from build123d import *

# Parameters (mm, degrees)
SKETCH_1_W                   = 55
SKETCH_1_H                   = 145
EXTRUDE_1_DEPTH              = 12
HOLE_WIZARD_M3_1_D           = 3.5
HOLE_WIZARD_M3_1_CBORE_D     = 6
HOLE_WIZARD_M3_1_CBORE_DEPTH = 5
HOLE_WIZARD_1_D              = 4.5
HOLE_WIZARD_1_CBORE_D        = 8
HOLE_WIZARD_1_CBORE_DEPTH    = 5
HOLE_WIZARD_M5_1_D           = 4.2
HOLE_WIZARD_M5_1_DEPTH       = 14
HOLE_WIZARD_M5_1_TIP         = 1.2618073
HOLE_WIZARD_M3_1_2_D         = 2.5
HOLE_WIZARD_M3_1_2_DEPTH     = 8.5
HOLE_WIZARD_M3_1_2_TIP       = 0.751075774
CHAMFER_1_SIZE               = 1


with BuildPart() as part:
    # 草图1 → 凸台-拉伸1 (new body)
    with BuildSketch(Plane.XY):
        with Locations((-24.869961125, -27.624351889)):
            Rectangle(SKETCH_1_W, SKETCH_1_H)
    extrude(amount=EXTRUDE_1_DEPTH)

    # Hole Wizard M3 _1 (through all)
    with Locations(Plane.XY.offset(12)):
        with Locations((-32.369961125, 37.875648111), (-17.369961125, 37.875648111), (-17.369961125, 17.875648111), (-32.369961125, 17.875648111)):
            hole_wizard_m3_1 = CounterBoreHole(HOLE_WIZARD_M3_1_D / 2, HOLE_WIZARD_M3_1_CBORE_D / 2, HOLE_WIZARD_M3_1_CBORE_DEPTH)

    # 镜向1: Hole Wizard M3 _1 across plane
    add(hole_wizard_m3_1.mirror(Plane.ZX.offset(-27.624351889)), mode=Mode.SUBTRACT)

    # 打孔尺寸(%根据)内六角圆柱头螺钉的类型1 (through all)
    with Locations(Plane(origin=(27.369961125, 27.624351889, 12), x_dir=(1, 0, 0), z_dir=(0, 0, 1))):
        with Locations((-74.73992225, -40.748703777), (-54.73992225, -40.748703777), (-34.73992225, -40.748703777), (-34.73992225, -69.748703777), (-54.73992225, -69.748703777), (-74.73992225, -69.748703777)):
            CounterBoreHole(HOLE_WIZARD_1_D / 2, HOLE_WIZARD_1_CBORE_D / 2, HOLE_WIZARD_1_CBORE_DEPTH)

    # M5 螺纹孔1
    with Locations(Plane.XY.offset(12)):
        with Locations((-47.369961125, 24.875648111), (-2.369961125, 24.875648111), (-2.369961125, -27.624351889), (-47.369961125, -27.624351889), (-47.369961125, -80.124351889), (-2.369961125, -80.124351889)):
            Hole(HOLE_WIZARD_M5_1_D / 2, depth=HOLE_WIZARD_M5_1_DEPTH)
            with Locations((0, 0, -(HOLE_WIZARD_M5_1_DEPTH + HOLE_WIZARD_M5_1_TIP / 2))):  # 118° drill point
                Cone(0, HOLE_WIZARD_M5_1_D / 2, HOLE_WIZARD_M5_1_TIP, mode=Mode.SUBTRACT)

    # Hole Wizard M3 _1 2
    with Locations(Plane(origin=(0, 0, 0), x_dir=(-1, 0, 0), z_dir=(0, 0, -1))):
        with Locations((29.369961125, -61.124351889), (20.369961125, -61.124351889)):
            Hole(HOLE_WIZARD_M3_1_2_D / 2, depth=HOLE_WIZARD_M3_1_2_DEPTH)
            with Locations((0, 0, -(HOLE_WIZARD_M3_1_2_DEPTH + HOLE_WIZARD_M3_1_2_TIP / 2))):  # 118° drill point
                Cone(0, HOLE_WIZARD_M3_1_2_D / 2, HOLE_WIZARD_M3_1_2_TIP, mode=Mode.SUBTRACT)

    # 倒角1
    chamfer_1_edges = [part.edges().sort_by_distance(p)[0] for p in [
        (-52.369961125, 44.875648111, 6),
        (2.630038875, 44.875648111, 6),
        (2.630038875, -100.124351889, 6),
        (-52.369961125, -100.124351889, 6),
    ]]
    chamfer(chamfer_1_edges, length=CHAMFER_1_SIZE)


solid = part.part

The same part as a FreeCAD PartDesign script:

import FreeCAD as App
import Part
import Sketcher
from FreeCAD import Vector


def edges_at(feature, points):
    """Names of the edges that pass closest to the given points."""
    edges = feature.Shape.Edges
    near = lambda p: min(range(len(edges)), key=lambda i: edges[i].distToShape(Part.Vertex(*p))[0])
    return sorted({f"Edge{near(p) + 1}" for p in points})

doc = App.newDocument("Part")
body = doc.addObject("PartDesign::Body", "Body")

# Sketch on XY plane
sketch1 = body.newObject("Sketcher::SketchObject", "Sketch")
sketch1.AttachmentSupport = (doc.getObject("XY_Plane"), [""])
sketch1.MapMode = "FlatFace"
sketch1.addGeometry(Part.LineSegment(Vector(-52, 45, 0), Vector(-52, -100, 0)), False)
sketch1.addGeometry(Part.LineSegment(Vector(-52, -100, 0), Vector(3, -100, 0)), False)
sketch1.addGeometry(Part.LineSegment(Vector(3, -100, 0), Vector(3, 45, 0)), False)
sketch1.addGeometry(Part.LineSegment(Vector(3, 45, 0), Vector(-52, 45, 0)), False)
sketch1.addConstraint(Sketcher.Constraint("Coincident", 0, 2, 1, 1))
sketch1.addConstraint(Sketcher.Constraint("Coincident", 1, 2, 2, 1))
sketch1.addConstraint(Sketcher.Constraint("Coincident", 2, 2, 3, 1))
sketch1.addConstraint(Sketcher.Constraint("Coincident", 3, 2, 0, 1))
sketch1.addConstraint(Sketcher.Constraint("Vertical", 0))
sketch1.addConstraint(Sketcher.Constraint("Horizontal", 1))
sketch1.addConstraint(Sketcher.Constraint("Vertical", 2))
sketch1.addConstraint(Sketcher.Constraint("Horizontal", 3))
sketch1.addConstraint(Sketcher.Constraint("DistanceX", 1, 1, 1, 2, 55.0))
sketch1.addConstraint(Sketcher.Constraint("DistanceY", 0, 2, 0, 1, 145.0))
sketch1.addConstraint(Sketcher.Constraint("DistanceX", 0, 2, -1, 1, 52.369961))
sketch1.addConstraint(Sketcher.Constraint("DistanceY", 0, 2, -1, 1, 100.124352))
pad1 = body.newObject("PartDesign::Pad", "Pad")
pad1.Profile = sketch1
pad1.Length = 12

# Sketch on XY plane
sketch2 = body.newObject("Sketcher::SketchObject", "Sketch001")
sketch2.AttachmentSupport = (doc.getObject("XY_Plane"), [""])
sketch2.MapMode = "FlatFace"
sketch2.AttachmentOffset = App.Placement(Vector(0, 0, 12), App.Rotation())
sketch2.addGeometry(Part.Circle(Vector(-32.4, 37.9, 0), Vector(0, 0, 1), 1.8), False)
sketch2.addGeometry(Part.Circle(Vector(-17.4, 37.9, 0), Vector(0, 0, 1), 1.8), False)
sketch2.addGeometry(Part.Circle(Vector(-17.4, 17.9, 0), Vector(0, 0, 1), 1.8), False)
sketch2.addGeometry(Part.Circle(Vector(-32.4, 17.9, 0), Vector(0, 0, 1), 1.8), False)
sketch2.addConstraint(Sketcher.Constraint("Equal", 0, 1))
sketch2.addConstraint(Sketcher.Constraint("Equal", 1, 2))
sketch2.addConstraint(Sketcher.Constraint("Equal", 2, 3))
sketch2.addConstraint(Sketcher.Constraint("Horizontal", 0, 3, 1, 3))
sketch2.addConstraint(Sketcher.Constraint("Horizontal", 2, 3, 3, 3))
sketch2.addConstraint(Sketcher.Constraint("Vertical", 1, 3, 2, 3))
sketch2.addConstraint(Sketcher.Constraint("Vertical", 0, 3, 3, 3))
sketch2.addConstraint(Sketcher.Constraint("Diameter", 0, 3.5))
sketch2.addConstraint(Sketcher.Constraint("DistanceX", 0, 3, 1, 3, 15.0))
sketch2.addConstraint(Sketcher.Constraint("DistanceY", 2, 3, 1, 3, 20.0))
sketch2.addConstraint(Sketcher.Constraint("DistanceX", 0, 3, -1, 1, 32.369961))
sketch2.addConstraint(Sketcher.Constraint("DistanceY", -1, 1, 0, 3, 37.875648))
doc.recompute()
hole = body.newObject("PartDesign::Hole", "Hole")
hole.Profile = sketch2
hole.ThreadType = "None"
hole.Diameter = 3.5
hole.DepthType = "ThroughAll"
hole.HoleCutType = "Counterbore"
hole.HoleCutDiameter = 6
hole.HoleCutDepth = 5
doc.recompute()

datumplane = body.newObject("PartDesign::Plane", "DatumPlane")
datumplane.AttachmentSupport = (doc.getObject("XZ_Plane"), [""])
datumplane.MapMode = "FlatFace"
datumplane.AttachmentOffset = App.Placement(Vector(0, 0, 27.624352), App.Rotation())
mirrored = body.newObject("PartDesign::Mirrored", "Mirrored")
mirrored.Originals = [hole]
mirrored.MirrorPlane = (datumplane, [""])
body.Tip = mirrored

# Sketch on XY plane
sketch3 = body.newObject("Sketcher::SketchObject", "Sketch002")
sketch3.AttachmentSupport = (doc.getObject("XY_Plane"), [""])
sketch3.MapMode = "FlatFace"
sketch3.AttachmentOffset = App.Placement(Vector(0, 0, 12), App.Rotation())
sketch3.addGeometry(Part.Circle(Vector(-47.4, -13.1, 0), Vector(0, 0, 1), 2.2), False)
sketch3.addGeometry(Part.Circle(Vector(-27.4, -13.1, 0), Vector(0, 0, 1), 2.2), False)
sketch3.addGeometry(Part.Circle(Vector(-7.4, -13.1, 0), Vector(0, 0, 1), 2.2), False)
sketch3.addGeometry(Part.Circle(Vector(-7.4, -42.1, 0), Vector(0, 0, 1), 2.2), False)
sketch3.addGeometry(Part.Circle(Vector(-27.4, -42.1, 0), Vector(0, 0, 1), 2.2), False)
sketch3.addGeometry(Part.Circle(Vector(-47.4, -42.1, 0), Vector(0, 0, 1), 2.2), False)
sketch3.addConstraint(Sketcher.Constraint("Equal", 0, 1))
sketch3.addConstraint(Sketcher.Constraint("Equal", 1, 2))
sketch3.addConstraint(Sketcher.Constraint("Equal", 2, 3))
sketch3.addConstraint(Sketcher.Constraint("Equal", 3, 4))
sketch3.addConstraint(Sketcher.Constraint("Equal", 4, 5))
sketch3.addConstraint(Sketcher.Constraint("Horizontal", 0, 3, 1, 3))
sketch3.addConstraint(Sketcher.Constraint("Horizontal", 1, 3, 2, 3))
sketch3.addConstraint(Sketcher.Constraint("Horizontal", 3, 3, 4, 3))
sketch3.addConstraint(Sketcher.Constraint("Horizontal", 4, 3, 5, 3))
sketch3.addConstraint(Sketcher.Constraint("Vertical", 2, 3, 3, 3))
sketch3.addConstraint(Sketcher.Constraint("Vertical", 1, 3, 4, 3))
sketch3.addConstraint(Sketcher.Constraint("Vertical", 0, 3, 5, 3))
sketch3.addConstraint(Sketcher.Constraint("Diameter", 0, 4.5))
sketch3.addConstraint(Sketcher.Constraint("DistanceX", 0, 3, 1, 3, 20.0))
sketch3.addConstraint(Sketcher.Constraint("DistanceX", 1, 3, 2, 3, 20.0))
sketch3.addConstraint(Sketcher.Constraint("DistanceY", 3, 3, 2, 3, 29.0))
sketch3.addConstraint(Sketcher.Constraint("DistanceX", 0, 3, -1, 1, 47.369961))
sketch3.addConstraint(Sketcher.Constraint("DistanceY", 0, 3, -1, 1, 13.124352))
doc.recompute()
hole2 = body.newObject("PartDesign::Hole", "Hole001")
hole2.Profile = sketch3
hole2.ThreadType = "None"
hole2.Diameter = 4.5
hole2.DepthType = "ThroughAll"
hole2.HoleCutType = "Counterbore"
hole2.HoleCutDiameter = 8
hole2.HoleCutDepth = 5

# Sketch on XY plane
sketch4 = body.newObject("Sketcher::SketchObject", "Sketch003")
sketch4.AttachmentSupport = (doc.getObject("XY_Plane"), [""])
sketch4.MapMode = "FlatFace"
sketch4.AttachmentOffset = App.Placement(Vector(0, 0, 12), App.Rotation())
sketch4.addGeometry(Part.Circle(Vector(-47.4, 24.9, 0), Vector(0, 0, 1), 2.1), False)
sketch4.addGeometry(Part.Circle(Vector(-2.4, 24.9, 0), Vector(0, 0, 1), 2.1), False)
sketch4.addGeometry(Part.Circle(Vector(-2.4, -27.6, 0), Vector(0, 0, 1), 2.1), False)
sketch4.addGeometry(Part.Circle(Vector(-47.4, -27.6, 0), Vector(0, 0, 1), 2.1), False)
sketch4.addGeometry(Part.Circle(Vector(-47.4, -80.1, 0), Vector(0, 0, 1), 2.1), False)
sketch4.addGeometry(Part.Circle(Vector(-2.4, -80.1, 0), Vector(0, 0, 1), 2.1), False)
sketch4.addConstraint(Sketcher.Constraint("Equal", 0, 1))
sketch4.addConstraint(Sketcher.Constraint("Equal", 1, 2))
sketch4.addConstraint(Sketcher.Constraint("Equal", 2, 3))
sketch4.addConstraint(Sketcher.Constraint("Equal", 3, 4))
sketch4.addConstraint(Sketcher.Constraint("Equal", 4, 5))
sketch4.addConstraint(Sketcher.Constraint("Horizontal", 0, 3, 1, 3))
sketch4.addConstraint(Sketcher.Constraint("Horizontal", 2, 3, 3, 3))
sketch4.addConstraint(Sketcher.Constraint("Horizontal", 4, 3, 5, 3))
sketch4.addConstraint(Sketcher.Constraint("Vertical", 1, 3, 2, 3))
sketch4.addConstraint(Sketcher.Constraint("Vertical", 0, 3, 3, 3))
sketch4.addConstraint(Sketcher.Constraint("Vertical", 3, 3, 4, 3))
sketch4.addConstraint(Sketcher.Constraint("Vertical", 2, 3, 5, 3))
sketch4.addConstraint(Sketcher.Constraint("Diameter", 0, 4.2))
sketch4.addConstraint(Sketcher.Constraint("DistanceX", 0, 3, 1, 3, 45.0))
sketch4.addConstraint(Sketcher.Constraint("DistanceY", 4, 3, 0, 3, 105.0))
sketch4.addConstraint(Sketcher.Constraint("DistanceY", 2, 3, 1, 3, 52.5))
sketch4.addConstraint(Sketcher.Constraint("DistanceX", 0, 3, -1, 1, 47.369961))
sketch4.addConstraint(Sketcher.Constraint("DistanceY", -1, 1, 0, 3, 24.875648))
doc.recompute()
hole3 = body.newObject("PartDesign::Hole", "Hole002")
hole3.Profile = sketch4
hole3.ThreadType = "None"
hole3.Diameter = 4.2
hole3.DepthType = "Dimension"
hole3.Depth = 14
hole3.DrillPoint = "Angled"
hole3.DrillPointAngle = 118

# Sketch on XY plane
sketch5 = body.newObject("Sketcher::SketchObject", "Sketch004")
sketch5.AttachmentSupport = (doc.getObject("XY_Plane"), [""])
sketch5.MapMode = "FlatFace"
sketch5.addGeometry(Part.Circle(Vector(-29.4, -61.1, 0), Vector(0, 0, 1), 1.2), False)
sketch5.addGeometry(Part.Circle(Vector(-20.4, -61.1, 0), Vector(0, 0, 1), 1.2), False)
sketch5.addConstraint(Sketcher.Constraint("Equal", 0, 1))
sketch5.addConstraint(Sketcher.Constraint("Horizontal", 0, 3, 1, 3))
sketch5.addConstraint(Sketcher.Constraint("Diameter", 0, 2.5))
sketch5.addConstraint(Sketcher.Constraint("DistanceX", 0, 3, 1, 3, 9.0))
sketch5.addConstraint(Sketcher.Constraint("DistanceX", 0, 3, -1, 1, 29.369961))
sketch5.addConstraint(Sketcher.Constraint("DistanceY", 0, 3, -1, 1, 61.124352))
doc.recompute()
hole4 = body.newObject("PartDesign::Hole", "Hole003")
hole4.Profile = sketch5
hole4.ThreadType = "None"
hole4.Diameter = 2.5
hole4.DepthType = "Dimension"
hole4.Depth = 8.5
hole4.DrillPoint = "Angled"
hole4.DrillPointAngle = 118
hole4.Reversed = True
doc.recompute()

chamfer = body.newObject("PartDesign::Chamfer", "Chamfer")
chamfer.Base = (hole4, edges_at(hole4, [
    (-52.37, 44.876, 6),
    (2.63, 44.876, 6),
    (2.63, -100.124, 6),
    (-52.37, -100.124, 6),
]))
chamfer.Size = 1

doc.recompute()
